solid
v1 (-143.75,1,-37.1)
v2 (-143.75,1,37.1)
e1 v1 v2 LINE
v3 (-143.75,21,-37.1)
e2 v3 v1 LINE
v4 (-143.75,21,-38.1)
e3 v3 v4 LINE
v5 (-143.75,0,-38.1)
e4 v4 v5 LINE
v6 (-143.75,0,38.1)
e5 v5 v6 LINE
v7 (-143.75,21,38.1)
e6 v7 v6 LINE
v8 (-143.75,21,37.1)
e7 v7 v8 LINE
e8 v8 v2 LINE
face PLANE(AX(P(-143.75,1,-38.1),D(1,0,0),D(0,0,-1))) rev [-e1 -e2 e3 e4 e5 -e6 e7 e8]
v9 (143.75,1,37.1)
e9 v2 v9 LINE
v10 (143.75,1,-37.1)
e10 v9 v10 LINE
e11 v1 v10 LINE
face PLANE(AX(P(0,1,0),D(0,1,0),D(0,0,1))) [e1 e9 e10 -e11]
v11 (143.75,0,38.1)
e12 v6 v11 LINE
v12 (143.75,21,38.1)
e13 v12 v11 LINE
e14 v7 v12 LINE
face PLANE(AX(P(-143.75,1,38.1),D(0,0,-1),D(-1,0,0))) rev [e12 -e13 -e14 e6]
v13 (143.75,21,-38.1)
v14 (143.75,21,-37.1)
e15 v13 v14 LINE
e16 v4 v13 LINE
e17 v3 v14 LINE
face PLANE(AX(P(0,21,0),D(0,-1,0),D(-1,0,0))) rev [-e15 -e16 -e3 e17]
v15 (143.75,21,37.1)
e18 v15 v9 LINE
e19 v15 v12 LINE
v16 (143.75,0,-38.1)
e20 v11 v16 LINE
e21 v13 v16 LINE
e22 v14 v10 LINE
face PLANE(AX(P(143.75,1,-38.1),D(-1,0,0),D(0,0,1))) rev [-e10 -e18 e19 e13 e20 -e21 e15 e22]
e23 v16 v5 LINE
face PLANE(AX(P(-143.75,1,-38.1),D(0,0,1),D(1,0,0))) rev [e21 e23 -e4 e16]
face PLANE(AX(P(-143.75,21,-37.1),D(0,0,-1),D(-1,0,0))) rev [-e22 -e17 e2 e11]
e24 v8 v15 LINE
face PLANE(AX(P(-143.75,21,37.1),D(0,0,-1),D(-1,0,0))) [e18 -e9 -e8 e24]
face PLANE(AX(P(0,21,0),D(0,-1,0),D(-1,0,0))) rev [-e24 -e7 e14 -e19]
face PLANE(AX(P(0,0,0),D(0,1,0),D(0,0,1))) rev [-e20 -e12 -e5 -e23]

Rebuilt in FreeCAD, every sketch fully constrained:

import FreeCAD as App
import Part
import Sketcher

V = App.Vector
Q = App.Units.Quantity


def add_polygon(sketch, points):
    """Adds a closed chain of lines whose ends are joined by coincident constraints."""
    first, n = sketch.GeometryCount, len(points)
    for a, b in zip(points, points[1:] + points[:1]):
        sketch.addGeometry(Part.LineSegment(App.Vector(*a, 0), App.Vector(*b, 0)), False)
    for i in range(n):
        sketch.addConstraint(Sketcher.Constraint("Coincident", first + i, 2, first + (i + 1) % n, 1))

doc = App.newDocument("Part")
params = doc.addObject("Spreadsheet::Sheet", "Params")
for row, (alias, value) in enumerate([
    ("sketch1_width", "287.5 mm"),
    ("sketch1_height", "76.2 mm"),
    ("pad1_length", "1 mm"),
    ("sketch2_height", "1 mm"),
    ("sketch2_width", "287.5 mm"),
    ("pad2_length", "20 mm"),
    ("sketch3_height", "1 mm"),
    ("sketch3_width", "287.5 mm"),
    ("pad3_length", "20 mm"),
], start=1):
    params.set(f"A{row}", alias)
    params.set(f"B{row}", "=" + value)
    params.setAlias(f"B{row}", alias)

body = doc.addObject("PartDesign::Body", "Body")

sketch1 = body.newObject("Sketcher::SketchObject", "Sketch")
sketch1.AttachmentSupport = (doc.getObject("XZ_Plane"), [""])
sketch1.MapMode = "FlatFace"
add_polygon(sketch1, [(-144, -38), (-144, 38), (144, 38), (144, -38)])
sketch1.addConstraint([
    Sketcher.Constraint("Vertical", 0),
    Sketcher.Constraint("Horizontal", 1),
    Sketcher.Constraint("Vertical", 2),
    Sketcher.Constraint("Horizontal", 3),
    Sketcher.Constraint("Symmetric", 0, 2, 2, 2, -1, 1),
    Sketcher.Constraint("DistanceX", 1, 1, 1, 2, Q("287.5 mm")),
    Sketcher.Constraint("DistanceY", 0, 1, 0, 2, Q("76.2 mm")),
])
sketch1.setExpression("Constraints[9]", "Params.sketch1_width")
sketch1.setExpression("Constraints[10]", "Params.sketch1_height")
pad1 = body.newObject("PartDesign::Pad", "Pad")
pad1.Profile = sketch1
pad1.setExpression("Length", "Params.pad1_length")
pad1.Reversed = True

sketch2 = body.newObject("Sketcher::SketchObject", "Sketch001")
sketch2.AttachmentSupport = (doc.getObject("XZ_Plane"), [""])
sketch2.MapMode = "FlatFace"
sketch2.AttachmentOffset = App.Placement(V(0, 0, -1), App.Rotation())
add_polygon(sketch2, [(-143.8, 37.1), (-143.8, 38.1), (143.8, 38.1), (143.8, 37.1)])
sketch2.addConstraint([
    Sketcher.Constraint("Vertical", 0),
    Sketcher.Constraint("Horizontal", 1),
    Sketcher.Constraint("Vertical", 2),
    Sketcher.Constraint("Horizontal", 3),
    Sketcher.Constraint("DistanceY", 0, 1, 0, 2, Q("1 mm")),
    Sketcher.Constraint("DistanceX", 1, 1, 1, 2, Q("287.5 mm")),
    Sketcher.Constraint("DistanceY", -1, 1, 0, 2, Q("38.1 mm")),
    Sketcher.Constraint("DistanceX", 0, 2, -1, 1, Q("143.75 mm")),
])
sketch2.setExpression("Constraints[8]", "Params.sketch2_height")
sketch2.setExpression("Constraints[9]", "Params.sketch2_width")
pad2 = body.newObject("PartDesign::Pad", "Pad001")
pad2.Profile = sketch2
pad2.setExpression("Length", "Params.pad2_length")
pad2.Reversed = True

sketch3 = body.newObject("Sketcher::SketchObject", "Sketch002")
sketch3.AttachmentSupport = (doc.getObject("XZ_Plane"), [""])
sketch3.MapMode = "FlatFace"
sketch3.AttachmentOffset = App.Placement(V(0, 0, -1), App.Rotation())
add_polygon(sketch3, [(-143.8, -38.1), (-143.8, -37.1), (143.8, -37.1), (143.8, -38.1)])
sketch3.addConstraint([
    Sketcher.Constraint("Vertical", 0),
    Sketcher.Constraint("Horizontal", 1),
    Sketcher.Constraint("Vertical", 2),
    Sketcher.Constraint("Horizontal", 3),
    Sketcher.Constraint("DistanceY", 0, 1, 0, 2, Q("1 mm")),
    Sketcher.Constraint("DistanceX", 1, 1, 1, 2, Q("287.5 mm")),
    Sketcher.Constraint("DistanceY", 0, 2, -1, 1, Q("37.1 mm")),
    Sketcher.Constraint("DistanceX", 0, 2, -1, 1, Q("143.75 mm")),
])
sketch3.setExpression("Constraints[8]", "Params.sketch3_height")
sketch3.setExpression("Constraints[9]", "Params.sketch3_width")
pad3 = body.newObject("PartDesign::Pad", "Pad002")
pad3.Profile = sketch3
pad3.setExpression("Length", "Params.pad3_length")
pad3.Reversed = True

doc.recompute()
